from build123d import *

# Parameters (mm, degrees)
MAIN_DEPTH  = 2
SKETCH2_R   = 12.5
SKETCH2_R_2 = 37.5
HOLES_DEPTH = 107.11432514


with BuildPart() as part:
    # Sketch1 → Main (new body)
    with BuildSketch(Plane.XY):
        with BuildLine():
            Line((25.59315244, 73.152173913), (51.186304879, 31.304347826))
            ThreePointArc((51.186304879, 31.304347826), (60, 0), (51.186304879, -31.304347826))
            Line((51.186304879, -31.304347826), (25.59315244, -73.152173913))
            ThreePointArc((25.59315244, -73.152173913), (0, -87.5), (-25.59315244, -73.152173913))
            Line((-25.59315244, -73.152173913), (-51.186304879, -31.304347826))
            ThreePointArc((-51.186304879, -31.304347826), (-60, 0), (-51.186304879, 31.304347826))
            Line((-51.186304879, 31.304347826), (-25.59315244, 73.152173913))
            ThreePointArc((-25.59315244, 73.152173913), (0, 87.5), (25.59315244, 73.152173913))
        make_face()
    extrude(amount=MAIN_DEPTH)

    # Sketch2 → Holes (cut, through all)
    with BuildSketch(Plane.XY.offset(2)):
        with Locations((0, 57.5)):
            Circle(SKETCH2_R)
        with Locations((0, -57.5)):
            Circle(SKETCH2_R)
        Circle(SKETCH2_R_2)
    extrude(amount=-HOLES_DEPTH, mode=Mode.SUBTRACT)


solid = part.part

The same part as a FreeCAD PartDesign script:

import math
import FreeCAD as App
import Part
import Sketcher

V = App.Vector
Q = App.Units.Quantity

doc = App.newDocument("Part")
body = doc.addObject("PartDesign::Body", "Body")

# Sketch on XY plane
sketch1 = body.newObject("Sketcher::SketchObject", "Sketch")
sketch1.AttachmentSupport = (doc.getObject("XY_Plane"), [""])
sketch1.MapMode = "FlatFace"
sketch1.addGeometry(Part.LineSegment(V(51.186305, 31.304348, 0), V(25.593152, 73.152174, 0)), False)
sketch1.addGeometry(Part.ArcOfCircle(Part.Circle(V(0, 57.5, 0), V(0, 0, 1), 30), math.radians(31.448981), math.radians(148.551019)), False)
sketch1.addGeometry(Part.LineSegment(V(-25.593152, 73.152174, 0), V(-51.186305, 31.304348, 0)), False)
sketch1.addGeometry(Part.ArcOfCircle(Part.Circle(V(0, 0, 0), V(0, 0, 1), 60), math.radians(148.551019), math.radians(211.448981)), False)
sketch1.addGeometry(Part.LineSegment(V(-51.186305, -31.304348, 0), V(-25.593152, -73.152174, 0)), False)
sketch1.addGeometry(Part.ArcOfCircle(Part.Circle(V(0, -57.5, 0), V(0, 0, 1), 30), math.radians(-148.551019), math.radians(-31.448981)), False)
sketch1.addGeometry(Part.LineSegment(V(25.593152, -73.152174, 0), V(51.186305, -31.304348, 0)), False)
sketch1.addGeometry(Part.ArcOfCircle(Part.Circle(V(0, 0, 0), V(0, 0, 1), 60), math.radians(-31.448981), math.radians(31.448981)), False)
sketch1.addConstraint(Sketcher.Constraint("Tangent", 0, 2, 1, 1))
sketch1.addConstraint(Sketcher.Constraint("Tangent", 1, 2, 2, 1))
sketch1.addConstraint(Sketcher.Constraint("Tangent", 2, 2, 3, 1))
sketch1.addConstraint(Sketcher.Constraint("Tangent", 3, 2, 4, 1))
sketch1.addConstraint(Sketcher.Constraint("Tangent", 4, 2, 5, 1))
sketch1.addConstraint(Sketcher.Constraint("Tangent", 5, 2, 6, 1))
sketch1.addConstraint(Sketcher.Constraint("Tangent", 6, 2, 7, 1))
sketch1.addConstraint(Sketcher.Constraint("Tangent", 7, 2, 0, 1))
sketch1.addConstraint(Sketcher.Constraint("Coincident", 3, 3, -1, 1))
sketch1.addConstraint(Sketcher.Constraint("Coincident", 7, 3, -1, 1))
sketch1.addConstraint(Sketcher.Constraint("Equal", 1, 5))
sketch1.addConstraint(Sketcher.Constraint("Equal", 3, 7))
sketch1.addConstraint(Sketcher.Constraint("Symmetric", 1, 3, 5, 3, -1, 1))
sketch1.addConstraint(Sketcher.Constraint("PointOnObject", 1, 3, -2))
sketch1.addConstraint(Sketcher.Constraint("Radius", 1, Q("30 mm")))
sketch1.addConstraint(Sketcher.Constraint("Radius", 3, Q("60 mm")))
sketch1.addConstraint(Sketcher.Constraint("DistanceY", 5, 3, 1, 3, Q("115 mm")))
pad1 = body.newObject("PartDesign::Pad", "Pad")
pad1.Profile = sketch1
pad1.Length = 2

# Sketch on XY plane
sketch2 = body.newObject("Sketcher::SketchObject", "Sketch001")
sketch2.AttachmentSupport = (doc.getObject("XY_Plane"), [""])
sketch2.MapMode = "FlatFace"
sketch2.AttachmentOffset = App.Placement(V(0, 0, 2), App.Rotation())
sketch2.addGeometry(Part.Circle(V(0, 57.5, 0), V(0, 0, 1), 12.5), False)
sketch2.addGeometry(Part.Circle(V(0, -57.5, 0), V(0, 0, 1), 12.5), False)
sketch2.addGeometry(Part.Circle(V(0, 0, 0), V(0, 0, 1), 37.5), False)
sketch2.addConstraint(Sketcher.Constraint("Coincident", 2, 3, -1, 1))
sketch2.addConstraint(Sketcher.Constraint("Equal", 0, 1))
sketch2.addConstraint(Sketcher.Constraint("Symmetric", 0, 3, 1, 3, -1, 1))
sketch2.addConstraint(Sketcher.Constraint("PointOnObject", 0, 3, -2))
sketch2.addConstraint(Sketcher.Constraint("Diameter", 0, Q("25 mm")))
sketch2.addConstraint(Sketcher.Constraint("Diameter", 2, Q("75 mm")))
sketch2.addConstraint(Sketcher.Constraint("DistanceY", 1, 3, 0, 3, Q("115 mm")))
pocket1 = body.newObject("PartDesign::Pocket", "Pocket")
pocket1.Profile = sketch2
pocket1.Type = "ThroughAll"

doc.recompute()
